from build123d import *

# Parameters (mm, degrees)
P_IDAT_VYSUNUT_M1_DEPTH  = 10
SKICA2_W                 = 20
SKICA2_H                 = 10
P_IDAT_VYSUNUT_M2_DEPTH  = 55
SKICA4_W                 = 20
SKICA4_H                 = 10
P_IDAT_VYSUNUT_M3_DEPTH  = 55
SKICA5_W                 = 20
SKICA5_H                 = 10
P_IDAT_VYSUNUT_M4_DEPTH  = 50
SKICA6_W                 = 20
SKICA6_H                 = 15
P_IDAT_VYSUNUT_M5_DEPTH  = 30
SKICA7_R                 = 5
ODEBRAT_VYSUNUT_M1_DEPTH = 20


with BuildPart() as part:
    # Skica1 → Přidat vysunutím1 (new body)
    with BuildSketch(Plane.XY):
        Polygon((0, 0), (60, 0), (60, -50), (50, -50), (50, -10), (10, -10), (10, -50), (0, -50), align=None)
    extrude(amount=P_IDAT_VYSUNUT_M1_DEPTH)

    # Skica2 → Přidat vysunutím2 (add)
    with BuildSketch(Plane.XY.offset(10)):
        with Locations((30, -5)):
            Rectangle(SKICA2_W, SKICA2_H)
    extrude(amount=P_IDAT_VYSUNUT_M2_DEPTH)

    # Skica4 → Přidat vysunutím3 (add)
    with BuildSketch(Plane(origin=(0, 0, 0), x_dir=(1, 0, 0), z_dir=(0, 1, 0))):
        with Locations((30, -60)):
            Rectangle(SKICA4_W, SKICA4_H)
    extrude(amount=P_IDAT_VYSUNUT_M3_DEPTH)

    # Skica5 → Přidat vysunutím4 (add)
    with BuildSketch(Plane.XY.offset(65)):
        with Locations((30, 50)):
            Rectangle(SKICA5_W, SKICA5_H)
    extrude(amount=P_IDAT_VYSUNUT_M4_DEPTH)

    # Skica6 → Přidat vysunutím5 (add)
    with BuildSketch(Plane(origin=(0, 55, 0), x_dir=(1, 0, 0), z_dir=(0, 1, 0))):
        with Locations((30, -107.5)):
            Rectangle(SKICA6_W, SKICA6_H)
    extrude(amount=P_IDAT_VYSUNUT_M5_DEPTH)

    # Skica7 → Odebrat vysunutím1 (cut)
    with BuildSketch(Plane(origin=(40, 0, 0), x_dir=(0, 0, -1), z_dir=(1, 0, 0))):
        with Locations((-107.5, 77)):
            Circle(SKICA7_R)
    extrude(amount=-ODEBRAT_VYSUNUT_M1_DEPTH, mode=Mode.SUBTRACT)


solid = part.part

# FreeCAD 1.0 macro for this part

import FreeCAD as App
import Part
import Sketcher
Q = App.Units.Quantity

doc = App.newDocument("Part")
params = doc.addObject("Spreadsheet::Sheet", "Params")
for row, (alias, value) in enumerate([
    ("sketch1_width", "60 mm"),
    ("sketch1_width2", "10 mm"),
    ("sketch1_height", "50 mm"),
    ("pad1_length", "10 mm"),
    ("sketch2_width", "20 mm"),
    ("sketch2_height", "10 mm"),
    ("pad2_length", "55 mm"),
    ("sketch3_width", "20 mm"),
    ("sketch3_height", "10 mm"),
    ("pad3_length", "55 mm"),
    ("sketch4_width", "20 mm"),
    ("sketch4_height", "10 mm"),
    ("pad4_length", "50 mm"),
    ("sketch5_width", "20 mm"),
    ("sketch5_height", "15 mm"),
    ("pad5_length", "30 mm"),
    ("sketch6_diameter", "10 mm"),
    ("pocket1_length", "20 mm"),
], start=1):
    params.set(f"A{row}", alias)
    params.set(f"B{row}", "=" + value)
    params.setAlias(f"B{row}", alias)

body = doc.addObject("PartDesign::Body", "Body")

# Sketch on XY plane
sketch1 = body.newObject("Sketcher::SketchObject", "Sketch")
sketch1.AttachmentSupport = (doc.getObject("XY_Plane"), [""])
sketch1.MapMode = "FlatFace"
sketch1.addGeometry(Part.LineSegment(App.Vector(60, 0, 0), App.Vector(0, 0, 0)), False)
sketch1.addGeometry(Part.LineSegment(App.Vector(0, 0, 0), App.Vector(0, -50, 0)), False)
sketch1.addGeometry(Part.LineSegment(App.Vector(0, -50, 0), App.Vector(10, -50, 0)), False)
sketch1.addGeometry(Part.LineSegment(App.Vector(10, -50, 0), App.Vector(10, -10, 0)), False)
sketch1.addGeometry(Part.LineSegment(App.Vector(10, -10, 0), App.Vector(50, -10, 0)), False)
sketch1.addGeometry(Part.LineSegment(App.Vector(50, -10, 0), App.Vector(50, -50, 0)), False)
sketch1.addGeometry(Part.LineSegment(App.Vector(50, -50, 0), App.Vector(60, -50, 0)), False)
sketch1.addGeometry(Part.LineSegment(App.Vector(60, -50, 0), App.Vector(60, 0, 0)), False)
sketch1.addConstraint(Sketcher.Constraint("Coincident", 0, 2, 1, 1))
sketch1.addConstraint(Sketcher.Constraint("Coincident", 1, 2, 2, 1))
sketch1.addConstraint(Sketcher.Constraint("Coincident", 2, 2, 3, 1))
sketch1.addConstraint(Sketcher.Constraint("Coincident", 3, 2, 4, 1))
sketch1.addConstraint(Sketcher.Constraint("Coincident", 4, 2, 5, 1))
sketch1.addConstraint(Sketcher.Constraint("Coincident", 5, 2, 6, 1))
sketch1.addConstraint(Sketcher.Constraint("Coincident", 6, 2, 7, 1))
sketch1.addConstraint(Sketcher.Constraint("Coincident", 7, 2, 0, 1))
sketch1.addConstraint(Sketcher.Constraint("Horizontal", 0))
sketch1.addConstraint(Sketcher.Constraint("Vertical", 1))
sketch1.addConstraint(Sketcher.Constraint("Horizontal", 2))
sketch1.addConstraint(Sketcher.Constraint("Vertical", 3))
sketch1.addConstraint(Sketcher.Constraint("Horizontal", 4))
sketch1.addConstraint(Sketcher.Constraint("Vertical", 5))
sketch1.addConstraint(Sketcher.Constraint("Horizontal", 6))
sketch1.addConstraint(Sketcher.Constraint("Vertical", 7))
sketch1.addConstraint(Sketcher.Constraint("Coincident", 0, 2, -1, 1))
sketch1.addConstraint(Sketcher.Constraint("Horizontal", 2, 2, 5, 2))
sketch1.addConstraint(Sketcher.Constraint("Equal", 2, 6))
sketch1.addConstraint(Sketcher.Constraint("Equal", 4, 3))
sketch1.addConstraint(Sketcher.Constraint("DistanceX", 0, 2, 0, 1, Q("60 mm")))
sketch1.addConstraint(Sketcher.Constraint("DistanceX", 2, 1, 2, 2, Q("10 mm")))
sketch1.addConstraint(Sketcher.Constraint("DistanceY", 1, 2, 1, 1, Q("50 mm")))
sketch1.setExpression("Constraints[20]", "Params.sketch1_width")
sketch1.setExpression("Constraints[21]", "Params.sketch1_width2")
sketch1.setExpression("Constraints[22]", "Params.sketch1_height")
pad1 = body.newObject("PartDesign::Pad", "Pad")
pad1.Profile = sketch1
pad1.setExpression("Length", "Params.pad1_length")

# Sketch on XY plane
sketch2 = body.newObject("Sketcher::SketchObject", "Sketch001")
sketch2.AttachmentSupport = (doc.getObject("XY_Plane"), [""])
sketch2.MapMode = "FlatFace"
sketch2.AttachmentOffset = App.Placement(App.Vector(0, 0, 10), App.Rotation())
sketch2.addGeometry(Part.LineSegment(App.Vector(20, 0, 0), App.Vector(20, -10, 0)), False)
sketch2.addGeometry(Part.LineSegment(App.Vector(20, -10, 0), App.Vector(40, -10, 0)), False)
sketch2.addGeometry(Part.LineSegment(App.Vector(40, -10, 0), App.Vector(40, 0, 0)), False)
sketch2.addGeometry(Part.LineSegment(App.Vector(40, 0, 0), App.Vector(20, 0, 0)), False)
sketch2.addConstraint(Sketcher.Constraint("Coincident", 0, 2, 1, 1))
sketch2.addConstraint(Sketcher.Constraint("Coincident", 1, 2, 2, 1))
sketch2.addConstraint(Sketcher.Constraint("Coincident", 2, 2, 3, 1))
sketch2.addConstraint(Sketcher.Constraint("Coincident", 3, 2, 0, 1))
sketch2.addConstraint(Sketcher.Constraint("Vertical", 0))
sketch2.addConstraint(Sketcher.Constraint("Horizontal", 1))
sketch2.addConstraint(Sketcher.Constraint("Vertical", 2))
sketch2.addConstraint(Sketcher.Constraint("Horizontal", 3))
sketch2.addConstraint(Sketcher.Constraint("PointOnObject", 2, 2, -1))
sketch2.addConstraint(Sketcher.Constraint("DistanceX", 1, 1, 1, 2, Q("20 mm")))
sketch2.addConstraint(Sketcher.Constraint("DistanceY", 0, 2, 0, 1, Q("10 mm")))
sketch2.addConstraint(Sketcher.Constraint("DistanceX", -1, 1, 0, 2, Q("20 mm")))
sketch2.setExpression("Constraints[9]", "Params.sketch2_width")
sketch2.setExpression("Constraints[10]", "Params.sketch2_height")
pad2 = body.newObject("PartDesign::Pad", "Pad001")
pad2.Profile = sketch2
pad2.setExpression("Length", "Params.pad2_length")

# Sketch on XZ plane
sketch3 = body.newObject("Sketcher::SketchObject", "Sketch002")
sketch3.AttachmentSupport = (doc.getObject("XZ_Plane"), [""])
sketch3.MapMode = "FlatFace"
sketch3.addGeometry(Part.LineSegment(App.Vector(20, 55, 0), App.Vector(20, 65, 0)), False)
sketch3.addGeometry(Part.LineSegment(App.Vector(20, 65, 0), App.Vector(40, 65, 0)), False)
sketch3.addGeometry(Part.LineSegment(App.Vector(40, 65, 0), App.Vector(40, 55, 0)), False)
sketch3.addGeometry(Part.LineSegment(App.Vector(40, 55, 0), App.Vector(20, 55, 0)), False)
sketch3.addConstraint(Sketcher.Constraint("Coincident", 0, 2, 1, 1))
sketch3.addConstraint(Sketcher.Constraint("Coincident", 1, 2, 2, 1))
sketch3.addConstraint(Sketcher.Constraint("Coincident", 2, 2, 3, 1))
sketch3.addConstraint(Sketcher.Constraint("Coincident", 3, 2, 0, 1))
sketch3.addConstraint(Sketcher.Constraint("Vertical", 0))
sketch3.addConstraint(Sketcher.Constraint("Horizontal", 1))
sketch3.addConstraint(Sketcher.Constraint("Vertical", 2))
sketch3.addConstraint(Sketcher.Constraint("Horizontal", 3))
sketch3.addConstraint(Sketcher.Constraint("DistanceX", 1, 1, 1, 2, Q("20 mm")))
sketch3.addConstraint(Sketcher.Constraint("DistanceY", 0, 1, 0, 2, Q("10 mm")))
sketch3.addConstraint(Sketcher.Constraint("DistanceX", -1, 1, 0, 2, Q("20 mm")))
sketch3.addConstraint(Sketcher.Constraint("DistanceY", -1, 1, 0, 2, Q("65 mm")))
sketch3.setExpression("Constraints[8]", "Params.sketch3_width")
sketch3.setExpression("Constraints[9]", "Params.sketch3_height")
pad3 = body.newObject("PartDesign::Pad", "Pad002")
pad3.Profile = sketch3
pad3.setExpression("Length", "Params.pad3_length")
pad3.Reversed = True

# Sketch on XY plane
sketch4 = body.newObject("Sketcher::SketchObject", "Sketch003")
sketch4.AttachmentSupport = (doc.getObject("XY_Plane"), [""])
sketch4.MapMode = "FlatFace"
sketch4.AttachmentOffset = App.Placement(App.Vector(0, 0, 65), App.Rotation())
sketch4.addGeometry(Part.LineSegment(App.Vector(20, 55, 0), App.Vector(20, 45, 0)), False)
sketch4.addGeometry(Part.LineSegment(App.Vector(20, 45, 0), App.Vector(40, 45, 0)), False)
sketch4.addGeometry(Part.LineSegment(App.Vector(40, 45, 0), App.Vector(40, 55, 0)), False)
sketch4.addGeometry(Part.LineSegment(App.Vector(40, 55, 0), App.Vector(20, 55, 0)), False)
sketch4.addConstraint(Sketcher.Constraint("Coincident", 0, 2, 1, 1))
sketch4.addConstraint(Sketcher.Constraint("Coincident", 1, 2, 2, 1))
sketch4.addConstraint(Sketcher.Constraint("Coincident", 2, 2, 3, 1))
sketch4.addConstraint(Sketcher.Constraint("Coincident", 3, 2, 0, 1))
sketch4.addConstraint(Sketcher.Constraint("Vertical", 0))
sketch4.addConstraint(Sketcher.Constraint("Horizontal", 1))
sketch4.addConstraint(Sketcher.Constraint("Vertical", 2))
sketch4.addConstraint(Sketcher.Constraint("Horizontal", 3))
sketch4.addConstraint(Sketcher.Constraint("DistanceX", 1, 1, 1, 2, Q("20 mm")))
sketch4.addConstraint(Sketcher.Constraint("DistanceY", 0, 2, 0, 1, Q("10 mm")))
sketch4.addConstraint(Sketcher.Constraint("DistanceX", -1, 1, 0, 2, Q("20 mm")))
sketch4.addConstraint(Sketcher.Constraint("DistanceY", -1, 1, 0, 2, Q("45 mm")))
sketch4.setExpression("Constraints[8]", "Params.sketch4_width")
sketch4.setExpression("Constraints[9]", "Params.sketch4_height")
pad4 = body.newObject("PartDesign::Pad", "Pad003")
pad4.Profile = sketch4
pad4.setExpression("Length", "Params.pad4_length")

# Sketch on XZ plane
sketch5 = body.newObject("Sketcher::SketchObject", "Sketch004")
sketch5.AttachmentSupport = (doc.getObject("XZ_Plane"), [""])
sketch5.MapMode = "FlatFace"
sketch5.AttachmentOffset = App.Placement(App.Vector(0, 0, -55), App.Rotation())
sketch5.addGeometry(Part.LineSegment(App.Vector(20, 100, 0), App.Vector(20, 115, 0)), False)
sketch5.addGeometry(Part.LineSegment(App.Vector(20, 115, 0), App.Vector(40, 115, 0)), False)
sketch5.addGeometry(Part.LineSegment(App.Vector(40, 115, 0), App.Vector(40, 100, 0)), False)
sketch5.addGeometry(Part.LineSegment(App.Vector(40, 100, 0), App.Vector(20, 100, 0)), False)
sketch5.addConstraint(Sketcher.Constraint("Coincident", 0, 2, 1, 1))
sketch5.addConstraint(Sketcher.Constraint("Coincident", 1, 2, 2, 1))
sketch5.addConstraint(Sketcher.Constraint("Coincident", 2, 2, 3, 1))
sketch5.addConstraint(Sketcher.Constraint("Coincident", 3, 2, 0, 1))
sketch5.addConstraint(Sketcher.Constraint("Vertical", 0))
sketch5.addConstraint(Sketcher.Constraint("Horizontal", 1))
sketch5.addConstraint(Sketcher.Constraint("Vertical", 2))
sketch5.addConstraint(Sketcher.Constraint("Horizontal", 3))
sketch5.addConstraint(Sketcher.Constraint("DistanceX", 1, 1, 1, 2, Q("20 mm")))
sketch5.addConstraint(Sketcher.Constraint("DistanceY", 0, 1, 0, 2, Q("15 mm")))
sketch5.addConstraint(Sketcher.Constraint("DistanceX", -1, 1, 0, 2, Q("20 mm")))
sketch5.addConstraint(Sketcher.Constraint("DistanceY", -1, 1, 0, 2, Q("115 mm")))
sketch5.setExpression("Constraints[8]", "Params.sketch5_width")
sketch5.setExpression("Constraints[9]", "Params.sketch5_height")
pad5 = body.newObject("PartDesign::Pad", "Pad004")
pad5.Profile = sketch5
pad5.setExpression("Length", "Params.pad5_length")
pad5.Reversed = True

# Sketch on YZ plane
sketch6 = body.newObject("Sketcher::SketchObject", "Sketch005")
sketch6.AttachmentSupport = (doc.getObject("YZ_Plane"), [""])
sketch6.MapMode = "FlatFace"
sketch6.AttachmentOffset = App.Placement(App.Vector(0, 0, 40), App.Rotation())
sketch6.addGeometry(Part.Circle(App.Vector(77, 107.5, 0), App.Vector(0, 0, 1), 5), False)
sketch6.addConstraint(Sketcher.Constraint("Diameter", 0, Q("10 mm")))
sketch6.addConstraint(Sketcher.Constraint("DistanceX", -1, 1, 0, 3, Q("77 mm")))
sketch6.addConstraint(Sketcher.Constraint("DistanceY", -1, 1, 0, 3, Q("107.5 mm")))
sketch6.setExpression("Constraints[0]", "Params.sketch6_diameter")
pocket1 = body.newObject("PartDesign::Pocket", "Pocket")
pocket1.Profile = sketch6
pocket1.setExpression("Length", "Params.pocket1_length")

doc.recompute()
